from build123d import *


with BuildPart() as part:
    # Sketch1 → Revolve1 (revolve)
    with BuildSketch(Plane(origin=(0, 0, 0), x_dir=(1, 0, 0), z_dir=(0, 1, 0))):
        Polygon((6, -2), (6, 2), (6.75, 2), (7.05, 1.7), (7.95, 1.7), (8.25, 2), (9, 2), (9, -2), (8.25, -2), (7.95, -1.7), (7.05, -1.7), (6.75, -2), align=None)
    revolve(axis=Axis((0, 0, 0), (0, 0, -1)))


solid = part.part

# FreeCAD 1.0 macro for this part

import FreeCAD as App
import Part
import Sketcher

V = App.Vector
Q = App.Units.Quantity

doc = App.newDocument("Part")
body = doc.addObject("PartDesign::Body", "Body")

sketch1 = body.newObject("Sketcher::SketchObject", "Sketch")
sketch1.AttachmentSupport = (doc.getObject("XZ_Plane"), [""])
sketch1.MapMode = "FlatFace"
sketch1.addGeometry(Part.LineSegment(V(6, -2, 0), V(6, 2, 0)), False)
sketch1.addGeometry(Part.LineSegment(V(6, 2, 0), V(6.75, 2, 0)), False)
sketch1.addGeometry(Part.LineSegment(V(6.75, 2, 0), V(7.05, 1.7, 0)), False)
sketch1.addGeometry(Part.LineSegment(V(7.05, 1.7, 0), V(7.95, 1.7, 0)), False)
sketch1.addGeometry(Part.LineSegment(V(7.95, 1.7, 0), V(8.25, 2, 0)), False)
sketch1.addGeometry(Part.LineSegment(V(8.25, 2, 0), V(9, 2, 0)), False)
sketch1.addGeometry(Part.LineSegment(V(9, 2, 0), V(9, -2, 0)), False)
sketch1.addGeometry(Part.LineSegment(V(9, -2, 0), V(8.25, -2, 0)), False)
sketch1.addGeometry(Part.LineSegment(V(8.25, -2, 0), V(7.95, -1.7, 0)), False)
sketch1.addGeometry(Part.LineSegment(V(7.95, -1.7, 0), V(7.05, -1.7, 0)), False)
sketch1.addGeometry(Part.LineSegment(V(7.05, -1.7, 0), V(6.75, -2, 0)), False)
sketch1.addGeometry(Part.LineSegment(V(6.75, -2, 0), V(6, -2, 0)), False)
sketch1.addConstraint(Sketcher.Constraint("Coincident", 0, 2, 1, 1))
sketch1.addConstraint(Sketcher.Constraint("Coincident", 1, 2, 2, 1))
sketch1.addConstraint(Sketcher.Constraint("Coincident", 2, 2, 3, 1))
sketch1.addConstraint(Sketcher.Constraint("Coincident", 3, 2, 4, 1))
sketch1.addConstraint(Sketcher.Constraint("Coincident", 4, 2, 5, 1))
sketch1.addConstraint(Sketcher.Constraint("Coincident", 5, 2, 6, 1))
sketch1.addConstraint(Sketcher.Constraint("Coincident", 6, 2, 7, 1))
sketch1.addConstraint(Sketcher.Constraint("Coincident", 7, 2, 8, 1))
sketch1.addConstraint(Sketcher.Constraint("Coincident", 8, 2, 9, 1))
sketch1.addConstraint(Sketcher.Constraint("Coincident", 9, 2, 10, 1))
sketch1.addConstraint(Sketcher.Constraint("Coincident", 10, 2, 11, 1))
sketch1.addConstraint(Sketcher.Constraint("Coincident", 11, 2, 0, 1))
sketch1.addConstraint(Sketcher.Constraint("Vertical", 0))
sketch1.addConstraint(Sketcher.Constraint("Horizontal", 1))
sketch1.addConstraint(Sketcher.Constraint("Horizontal", 3))
sketch1.addConstraint(Sketcher.Constraint("Horizontal", 5))
sketch1.addConstraint(Sketcher.Constraint("Vertical", 6))
sketch1.addConstraint(Sketcher.Constraint("Horizontal", 7))
sketch1.addConstraint(Sketcher.Constraint("Horizontal", 9))
sketch1.addConstraint(Sketcher.Constraint("Horizontal", 11))
sketch1.addConstraint(Sketcher.Constraint("Symmetric", 4, 2, 7, 2, -1))
sketch1.addConstraint(Sketcher.Constraint("Symmetric", 3, 2, 8, 2, -1))
sketch1.addConstraint(Sketcher.Constraint("Symmetric", 1, 2, 10, 2, -1))
sketch1.addConstraint(Sketcher.Constraint("Perpendicular", 2, 4))
sketch1.addConstraint(Sketcher.Constraint("Perpendicular", 4, 8))
sketch1.addConstraint(Sketcher.Constraint("Perpendicular", 8, 10))
sketch1.addConstraint(Sketcher.Constraint("Horizontal", 1, 2, 4, 2))
sketch1.addConstraint(Sketcher.Constraint("Equal", 1, 5))
sketch1.addConstraint(Sketcher.Constraint("DistanceY", 0, 1, 0, 2, Q("4 mm")))
sketch1.addConstraint(Sketcher.Constraint("DistanceX", 3, 1, 3, 2, Q("0.9 mm")))
sketch1.addConstraint(Sketcher.Constraint("DistanceX", -1, 1, 0, 2, Q("6 mm")))
sketch1.addConstraint(Sketcher.Constraint("DistanceX", -1, 1, 5, 2, Q("9 mm")))
sketch1.addConstraint(Sketcher.Constraint("DistanceX", 1, 1, 1, 2, Q("0.75 mm")))
revolution = body.newObject("PartDesign::Revolution", "Revolution")
revolution.Profile = sketch1
revolution.ReferenceAxis = (sketch1, ["V_Axis"])
revolution.Angle = 360

doc.recompute()
